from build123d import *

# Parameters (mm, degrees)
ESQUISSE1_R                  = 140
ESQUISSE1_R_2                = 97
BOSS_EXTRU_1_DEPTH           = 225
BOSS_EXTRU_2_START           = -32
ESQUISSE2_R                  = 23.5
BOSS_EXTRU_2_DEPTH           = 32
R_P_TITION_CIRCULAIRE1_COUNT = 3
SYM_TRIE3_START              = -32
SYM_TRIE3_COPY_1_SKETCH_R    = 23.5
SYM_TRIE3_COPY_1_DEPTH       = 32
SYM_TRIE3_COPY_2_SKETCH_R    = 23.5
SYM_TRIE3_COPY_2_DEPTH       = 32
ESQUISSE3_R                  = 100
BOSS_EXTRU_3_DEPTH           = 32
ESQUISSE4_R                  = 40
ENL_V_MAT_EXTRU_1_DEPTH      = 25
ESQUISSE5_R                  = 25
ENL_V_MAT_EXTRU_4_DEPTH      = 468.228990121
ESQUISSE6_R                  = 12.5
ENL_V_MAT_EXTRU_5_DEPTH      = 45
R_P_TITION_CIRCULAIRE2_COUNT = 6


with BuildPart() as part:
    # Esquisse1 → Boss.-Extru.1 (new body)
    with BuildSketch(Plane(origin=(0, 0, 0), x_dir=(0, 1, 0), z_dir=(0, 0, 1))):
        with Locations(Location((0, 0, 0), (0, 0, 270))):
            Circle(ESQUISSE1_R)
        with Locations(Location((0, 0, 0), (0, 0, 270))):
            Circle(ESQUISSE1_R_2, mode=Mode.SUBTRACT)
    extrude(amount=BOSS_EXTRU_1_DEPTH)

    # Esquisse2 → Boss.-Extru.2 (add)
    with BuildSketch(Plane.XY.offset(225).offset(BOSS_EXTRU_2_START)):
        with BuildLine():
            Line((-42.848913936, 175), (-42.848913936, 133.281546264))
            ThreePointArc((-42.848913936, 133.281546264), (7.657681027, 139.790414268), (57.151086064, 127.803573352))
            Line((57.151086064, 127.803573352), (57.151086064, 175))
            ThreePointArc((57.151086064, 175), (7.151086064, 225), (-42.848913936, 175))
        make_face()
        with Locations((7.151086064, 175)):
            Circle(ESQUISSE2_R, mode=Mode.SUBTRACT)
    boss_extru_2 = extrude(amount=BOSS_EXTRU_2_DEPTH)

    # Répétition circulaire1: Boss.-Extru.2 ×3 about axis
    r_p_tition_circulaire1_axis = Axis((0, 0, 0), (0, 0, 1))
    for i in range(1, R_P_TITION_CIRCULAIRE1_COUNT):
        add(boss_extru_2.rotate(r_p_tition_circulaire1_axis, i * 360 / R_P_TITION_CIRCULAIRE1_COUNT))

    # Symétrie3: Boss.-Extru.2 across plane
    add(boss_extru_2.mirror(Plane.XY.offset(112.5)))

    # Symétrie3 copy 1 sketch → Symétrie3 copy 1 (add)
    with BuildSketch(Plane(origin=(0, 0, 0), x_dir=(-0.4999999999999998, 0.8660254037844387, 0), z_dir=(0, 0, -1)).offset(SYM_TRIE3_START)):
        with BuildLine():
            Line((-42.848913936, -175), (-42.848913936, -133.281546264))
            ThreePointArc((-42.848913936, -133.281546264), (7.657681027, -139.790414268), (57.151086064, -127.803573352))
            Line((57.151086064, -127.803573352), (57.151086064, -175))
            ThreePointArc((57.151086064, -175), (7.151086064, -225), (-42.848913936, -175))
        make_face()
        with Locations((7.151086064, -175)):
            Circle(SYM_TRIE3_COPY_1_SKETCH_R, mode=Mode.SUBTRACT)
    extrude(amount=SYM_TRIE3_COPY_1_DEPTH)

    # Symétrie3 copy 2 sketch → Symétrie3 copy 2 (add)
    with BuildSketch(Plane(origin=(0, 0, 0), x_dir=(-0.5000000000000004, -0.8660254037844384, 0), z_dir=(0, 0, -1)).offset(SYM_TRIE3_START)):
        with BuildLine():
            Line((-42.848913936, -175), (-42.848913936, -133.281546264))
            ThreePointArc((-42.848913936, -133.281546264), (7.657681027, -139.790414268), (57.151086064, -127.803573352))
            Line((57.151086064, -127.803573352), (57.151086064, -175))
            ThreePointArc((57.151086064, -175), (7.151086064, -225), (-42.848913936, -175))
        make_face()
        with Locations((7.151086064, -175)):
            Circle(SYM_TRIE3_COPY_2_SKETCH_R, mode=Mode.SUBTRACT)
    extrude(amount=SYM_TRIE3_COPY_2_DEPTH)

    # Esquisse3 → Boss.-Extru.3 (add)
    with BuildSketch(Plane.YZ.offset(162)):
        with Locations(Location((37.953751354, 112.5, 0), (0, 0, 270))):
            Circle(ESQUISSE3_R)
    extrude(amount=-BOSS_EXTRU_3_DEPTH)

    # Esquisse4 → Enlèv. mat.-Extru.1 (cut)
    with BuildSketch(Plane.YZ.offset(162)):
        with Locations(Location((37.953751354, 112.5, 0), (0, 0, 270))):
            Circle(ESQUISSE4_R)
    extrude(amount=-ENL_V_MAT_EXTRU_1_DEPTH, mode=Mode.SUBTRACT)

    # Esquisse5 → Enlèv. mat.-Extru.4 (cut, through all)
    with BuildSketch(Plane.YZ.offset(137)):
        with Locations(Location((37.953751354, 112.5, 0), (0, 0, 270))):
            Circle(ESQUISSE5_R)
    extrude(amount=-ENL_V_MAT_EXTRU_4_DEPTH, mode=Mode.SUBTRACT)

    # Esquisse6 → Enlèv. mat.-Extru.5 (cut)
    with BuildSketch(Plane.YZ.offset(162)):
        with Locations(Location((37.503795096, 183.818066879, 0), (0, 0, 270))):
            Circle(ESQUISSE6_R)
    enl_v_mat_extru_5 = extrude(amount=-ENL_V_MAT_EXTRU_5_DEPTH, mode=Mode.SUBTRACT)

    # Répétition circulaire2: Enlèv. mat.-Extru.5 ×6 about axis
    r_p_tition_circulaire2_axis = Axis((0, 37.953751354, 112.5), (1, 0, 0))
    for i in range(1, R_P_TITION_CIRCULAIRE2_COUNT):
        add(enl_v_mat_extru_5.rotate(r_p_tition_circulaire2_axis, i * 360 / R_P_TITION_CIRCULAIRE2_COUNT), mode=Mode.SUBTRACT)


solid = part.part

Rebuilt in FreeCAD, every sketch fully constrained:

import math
import FreeCAD as App
import Part
import Sketcher

V = App.Vector
Q = App.Units.Quantity

doc = App.newDocument("Part")
body = doc.addObject("PartDesign::Body", "Body")

# Sketch on XY plane
sketch1 = body.newObject("Sketcher::SketchObject", "Sketch")
sketch1.AttachmentSupport = (doc.getObject("XY_Plane"), [""])
sketch1.MapMode = "FlatFace"
sketch1.addGeometry([
    Part.Circle(V(0, 0, 0), V(0, 0, 1), 140),
    Part.Circle(V(0, 0, 0), V(0, 0, 1), 97),
], False)
sketch1.addConstraint([
    Sketcher.Constraint("Coincident", 0, 3, -1, 1),
    Sketcher.Constraint("Coincident", 1, 3, -1, 1),
    Sketcher.Constraint("Diameter", 0, 280.0),
    Sketcher.Constraint("Diameter", 1, 194.0),
])
pad1 = body.newObject("PartDesign::Pad", "Pad")
pad1.Profile = sketch1
pad1.Length = 225

# Sketch on XY plane
sketch2 = body.newObject("Sketcher::SketchObject", "Sketch001")
sketch2.AttachmentSupport = (doc.getObject("XY_Plane"), [""])
sketch2.MapMode = "FlatFace"
sketch2.AttachmentOffset = App.Placement(V(0, 0, 193), App.Rotation())
sketch2.addGeometry([
    Part.LineSegment(V(-43, 175, 0), V(-43, 133, 0)),  # 0
    Part.ArcOfCircle(Part.Circle(V(0, 0, 0), V(0, 0, 1), 140), math.radians(66), math.radians(108)),  # 1
    Part.LineSegment(V(57, 128, 0), V(57, 175, 0)),  # 2
    Part.ArcOfCircle(Part.Circle(V(7, 175, 0), V(0, 0, 1), 50), math.radians(0), math.radians(180)),  # 3
    Part.Circle(V(7, 175, 0), V(0, 0, 1), 24),  # 4
], False)
sketch2.addConstraint([
    Sketcher.Constraint("Coincident", 0, 2, 1, 2),
    Sketcher.Constraint("Coincident", 1, 1, 2, 1),
    Sketcher.Constraint("Tangent", 2, 2, 3, 1),
    Sketcher.Constraint("Tangent", 3, 2, 0, 1),
    Sketcher.Constraint("Vertical", 0),
    Sketcher.Constraint("Vertical", 2),
    Sketcher.Constraint("Coincident", 1, 3, -1, 1),
    Sketcher.Constraint("Coincident", 4, 3, 3, 3),
    Sketcher.Constraint("Diameter", 4, 47.0),
    Sketcher.Constraint("Radius", 1, 140.0),
    Sketcher.Constraint("Radius", 3, 50.0),
    Sketcher.Constraint("DistanceY", -1, 1, 3, 3, 175.0),
    Sketcher.Constraint("DistanceY", 0, 2, 0, 1, 41.718454),
])
pad2 = body.newObject("PartDesign::Pad", "Pad001")
pad2.Profile = sketch2
pad2.Length = 32
doc.recompute()

polarpattern = body.newObject("PartDesign::PolarPattern", "PolarPattern")
polarpattern.Originals = [pad2]
polarpattern.Axis = (doc.getObject("Z_Axis"), [""])
polarpattern.Angle = 360
polarpattern.Occurrences = 3
body.Tip = polarpattern
doc.recompute()

datumplane = body.newObject("PartDesign::Plane", "DatumPlane")
datumplane.AttachmentSupport = (doc.getObject("XY_Plane"), [""])
datumplane.MapMode = "FlatFace"
datumplane.AttachmentOffset = App.Placement(V(0, 0, 112.5), App.Rotation())
mirrored = body.newObject("PartDesign::Mirrored", "Mirrored")
mirrored.Originals = [pad2]
mirrored.MirrorPlane = (datumplane, [""])
body.Tip = mirrored

# Sketch on XY plane
sketch3 = body.newObject("Sketcher::SketchObject", "Sketch002")
sketch3.AttachmentSupport = (doc.getObject("XY_Plane"), [""])
sketch3.MapMode = "FlatFace"
sketch3.AttachmentOffset = App.Placement(V(0, 0, 32), App.Rotation())
sketch3.addGeometry([
    Part.LineSegment(V(-94, -104, 0), V(-130, -125, 0)),  # 0
    Part.ArcOfCircle(Part.Circle(V(-155, -81, 0), V(0, 0, 1), 50), math.radians(120), math.radians(300)),  # 1
    Part.LineSegment(V(-180, -38, 0), V(-139, -14, 0)),  # 2
    Part.ArcOfCircle(Part.Circle(V(0, 0, 0), V(0, 0, 1), 140), math.radians(-174), math.radians(-132)),  # 3
    Part.Circle(V(-155, -81, 0), V(0, 0, 1), 24),  # 4
], False)
sketch3.addConstraint([
    Sketcher.Constraint("Tangent", 0, 2, 1, 2),
    Sketcher.Constraint("Tangent", 1, 1, 2, 1),
    Sketcher.Constraint("Coincident", 2, 2, 3, 1),
    Sketcher.Constraint("Coincident", 3, 2, 0, 1),
    Sketcher.Constraint("Coincident", 3, 3, -1, 1),
    Sketcher.Constraint("Coincident", 4, 3, 1, 3),
    Sketcher.Constraint("Parallel", 0, 2),
    Sketcher.Constraint("Diameter", 4, 47.0),
    Sketcher.Constraint("Radius", 1, 50.0),
    Sketcher.Constraint("Radius", 3, 140.0),
    Sketcher.Constraint("Angle", 0, Q("-150 deg")),
    Sketcher.Constraint("DistanceX", 1, 3, -1, 1, 155.129989),
    Sketcher.Constraint("DistanceY", 0, 2, -1, 1, 124.608248),
])
pad3 = body.newObject("PartDesign::Pad", "Pad002")
pad3.Profile = sketch3
pad3.Length = 32
pad3.Reversed = True

# Sketch on XY plane
sketch4 = body.newObject("Sketcher::SketchObject", "Sketch003")
sketch4.AttachmentSupport = (doc.getObject("XY_Plane"), [""])
sketch4.MapMode = "FlatFace"
sketch4.AttachmentOffset = App.Placement(V(0, 0, 32), App.Rotation())
sketch4.addGeometry([
    Part.LineSegment(V(137, -30, 0), V(173, -50, 0)),  # 0
    Part.ArcOfCircle(Part.Circle(V(148, -94, 0), V(0, 0, 1), 50), math.radians(-120), math.radians(60)),  # 1
    Part.LineSegment(V(123, -137, 0), V(82, -113, 0)),  # 2
    Part.ArcOfCircle(Part.Circle(V(0, 0, 0), V(0, 0, 1), 140), math.radians(-54), math.radians(-12)),  # 3
    Part.Circle(V(148, -94, 0), V(0, 0, 1), 24),  # 4
], False)
sketch4.addConstraint([
    Sketcher.Constraint("Tangent", 0, 2, 1, 2),
    Sketcher.Constraint("Tangent", 1, 1, 2, 1),
    Sketcher.Constraint("Coincident", 2, 2, 3, 1),
    Sketcher.Constraint("Coincident", 3, 2, 0, 1),
    Sketcher.Constraint("Coincident", 3, 3, -1, 1),
    Sketcher.Constraint("Coincident", 4, 3, 1, 3),
    Sketcher.Constraint("Parallel", 0, 2),
    Sketcher.Constraint("Diameter", 4, 47.0),
    Sketcher.Constraint("Radius", 1, 50.0),
    Sketcher.Constraint("Radius", 3, 140.0),
    Sketcher.Constraint("Angle", 0, Q("-30 deg")),
    Sketcher.Constraint("DistanceX", -1, 1, 2, 2, 82.105598),
    Sketcher.Constraint("DistanceY", 0, 2, -1, 1, 50.391752),
])
pad4 = body.newObject("PartDesign::Pad", "Pad003")
pad4.Profile = sketch4
pad4.Length = 32
pad4.Reversed = True

# Sketch on YZ plane
sketch5 = body.newObject("Sketcher::SketchObject", "Sketch004")
sketch5.AttachmentSupport = (doc.getObject("YZ_Plane"), [""])
sketch5.MapMode = "FlatFace"
sketch5.AttachmentOffset = App.Placement(V(0, 0, 162), App.Rotation())
sketch5.addGeometry(Part.Circle(V(38, 112, 0), V(0, 0, 1), 100), False)
sketch5.addConstraint([
    Sketcher.Constraint("Diameter", 0, 200.0),
    Sketcher.Constraint("DistanceY", -1, 1, 0, 3, 112.5),
    Sketcher.Constraint("DistanceX", -1, 1, 0, 3, 37.953751),
])
pad5 = body.newObject("PartDesign::Pad", "Pad004")
pad5.Profile = sketch5
pad5.Length = 32
pad5.Reversed = True

# Sketch on YZ plane
sketch6 = body.newObject("Sketcher::SketchObject", "Sketch005")
sketch6.AttachmentSupport = (doc.getObject("YZ_Plane"), [""])
sketch6.MapMode = "FlatFace"
sketch6.AttachmentOffset = App.Placement(V(0, 0, 162), App.Rotation())
sketch6.addGeometry(Part.Circle(V(38, 112, 0), V(0, 0, 1), 40), False)
sketch6.addConstraint([
    Sketcher.Constraint("Diameter", 0, 80.0),
    Sketcher.Constraint("DistanceY", -1, 1, 0, 3, 112.5),
    Sketcher.Constraint("DistanceX", -1, 1, 0, 3, 37.953751),
])
pocket1 = body.newObject("PartDesign::Pocket", "Pocket")
pocket1.Profile = sketch6
pocket1.Length = 25

# Sketch on YZ plane
sketch7 = body.newObject("Sketcher::SketchObject", "Sketch006")
sketch7.AttachmentSupport = (doc.getObject("YZ_Plane"), [""])
sketch7.MapMode = "FlatFace"
sketch7.AttachmentOffset = App.Placement(V(0, 0, 137), App.Rotation())
sketch7.addGeometry(Part.Circle(V(38, 112, 0), V(0, 0, 1), 25), False)
sketch7.addConstraint([
    Sketcher.Constraint("Diameter", 0, 50.0),
    Sketcher.Constraint("DistanceY", -1, 1, 0, 3, 112.5),
    Sketcher.Constraint("DistanceX", -1, 1, 0, 3, 37.953751),
])
pocket2 = body.newObject("PartDesign::Pocket", "Pocket001")
pocket2.Profile = sketch7
pocket2.Type = "ThroughAll"

# Sketch on YZ plane
sketch8 = body.newObject("Sketcher::SketchObject", "Sketch007")
sketch8.AttachmentSupport = (doc.getObject("YZ_Plane"), [""])
sketch8.MapMode = "FlatFace"
sketch8.AttachmentOffset = App.Placement(V(0, 0, 162), App.Rotation())
sketch8.addGeometry(Part.Circle(V(38, 184, 0), V(0, 0, 1), 12), False)
sketch8.addConstraint([
    Sketcher.Constraint("Diameter", 0, 25.0),
    Sketcher.Constraint("DistanceX", -1, 1, 0, 3, 37.503795),
    Sketcher.Constraint("DistanceY", -1, 1, 0, 3, 183.818067),
])
pocket3 = body.newObject("PartDesign::Pocket", "Pocket002")
pocket3.Profile = sketch8
pocket3.Length = 45
doc.recompute()

datumline = body.newObject("PartDesign::Line", "DatumLine")
datumline.Placement = App.Placement(V(0, 37.953751, 112.5), App.Rotation(V(0, 0, 1), V(1, 0, 0)))
polarpattern2 = body.newObject("PartDesign::PolarPattern", "PolarPattern001")
polarpattern2.Originals = [pocket3]
polarpattern2.Axis = (datumline, [""])
polarpattern2.Angle = 360
polarpattern2.Occurrences = 6
body.Tip = polarpattern2

doc.recompute()
